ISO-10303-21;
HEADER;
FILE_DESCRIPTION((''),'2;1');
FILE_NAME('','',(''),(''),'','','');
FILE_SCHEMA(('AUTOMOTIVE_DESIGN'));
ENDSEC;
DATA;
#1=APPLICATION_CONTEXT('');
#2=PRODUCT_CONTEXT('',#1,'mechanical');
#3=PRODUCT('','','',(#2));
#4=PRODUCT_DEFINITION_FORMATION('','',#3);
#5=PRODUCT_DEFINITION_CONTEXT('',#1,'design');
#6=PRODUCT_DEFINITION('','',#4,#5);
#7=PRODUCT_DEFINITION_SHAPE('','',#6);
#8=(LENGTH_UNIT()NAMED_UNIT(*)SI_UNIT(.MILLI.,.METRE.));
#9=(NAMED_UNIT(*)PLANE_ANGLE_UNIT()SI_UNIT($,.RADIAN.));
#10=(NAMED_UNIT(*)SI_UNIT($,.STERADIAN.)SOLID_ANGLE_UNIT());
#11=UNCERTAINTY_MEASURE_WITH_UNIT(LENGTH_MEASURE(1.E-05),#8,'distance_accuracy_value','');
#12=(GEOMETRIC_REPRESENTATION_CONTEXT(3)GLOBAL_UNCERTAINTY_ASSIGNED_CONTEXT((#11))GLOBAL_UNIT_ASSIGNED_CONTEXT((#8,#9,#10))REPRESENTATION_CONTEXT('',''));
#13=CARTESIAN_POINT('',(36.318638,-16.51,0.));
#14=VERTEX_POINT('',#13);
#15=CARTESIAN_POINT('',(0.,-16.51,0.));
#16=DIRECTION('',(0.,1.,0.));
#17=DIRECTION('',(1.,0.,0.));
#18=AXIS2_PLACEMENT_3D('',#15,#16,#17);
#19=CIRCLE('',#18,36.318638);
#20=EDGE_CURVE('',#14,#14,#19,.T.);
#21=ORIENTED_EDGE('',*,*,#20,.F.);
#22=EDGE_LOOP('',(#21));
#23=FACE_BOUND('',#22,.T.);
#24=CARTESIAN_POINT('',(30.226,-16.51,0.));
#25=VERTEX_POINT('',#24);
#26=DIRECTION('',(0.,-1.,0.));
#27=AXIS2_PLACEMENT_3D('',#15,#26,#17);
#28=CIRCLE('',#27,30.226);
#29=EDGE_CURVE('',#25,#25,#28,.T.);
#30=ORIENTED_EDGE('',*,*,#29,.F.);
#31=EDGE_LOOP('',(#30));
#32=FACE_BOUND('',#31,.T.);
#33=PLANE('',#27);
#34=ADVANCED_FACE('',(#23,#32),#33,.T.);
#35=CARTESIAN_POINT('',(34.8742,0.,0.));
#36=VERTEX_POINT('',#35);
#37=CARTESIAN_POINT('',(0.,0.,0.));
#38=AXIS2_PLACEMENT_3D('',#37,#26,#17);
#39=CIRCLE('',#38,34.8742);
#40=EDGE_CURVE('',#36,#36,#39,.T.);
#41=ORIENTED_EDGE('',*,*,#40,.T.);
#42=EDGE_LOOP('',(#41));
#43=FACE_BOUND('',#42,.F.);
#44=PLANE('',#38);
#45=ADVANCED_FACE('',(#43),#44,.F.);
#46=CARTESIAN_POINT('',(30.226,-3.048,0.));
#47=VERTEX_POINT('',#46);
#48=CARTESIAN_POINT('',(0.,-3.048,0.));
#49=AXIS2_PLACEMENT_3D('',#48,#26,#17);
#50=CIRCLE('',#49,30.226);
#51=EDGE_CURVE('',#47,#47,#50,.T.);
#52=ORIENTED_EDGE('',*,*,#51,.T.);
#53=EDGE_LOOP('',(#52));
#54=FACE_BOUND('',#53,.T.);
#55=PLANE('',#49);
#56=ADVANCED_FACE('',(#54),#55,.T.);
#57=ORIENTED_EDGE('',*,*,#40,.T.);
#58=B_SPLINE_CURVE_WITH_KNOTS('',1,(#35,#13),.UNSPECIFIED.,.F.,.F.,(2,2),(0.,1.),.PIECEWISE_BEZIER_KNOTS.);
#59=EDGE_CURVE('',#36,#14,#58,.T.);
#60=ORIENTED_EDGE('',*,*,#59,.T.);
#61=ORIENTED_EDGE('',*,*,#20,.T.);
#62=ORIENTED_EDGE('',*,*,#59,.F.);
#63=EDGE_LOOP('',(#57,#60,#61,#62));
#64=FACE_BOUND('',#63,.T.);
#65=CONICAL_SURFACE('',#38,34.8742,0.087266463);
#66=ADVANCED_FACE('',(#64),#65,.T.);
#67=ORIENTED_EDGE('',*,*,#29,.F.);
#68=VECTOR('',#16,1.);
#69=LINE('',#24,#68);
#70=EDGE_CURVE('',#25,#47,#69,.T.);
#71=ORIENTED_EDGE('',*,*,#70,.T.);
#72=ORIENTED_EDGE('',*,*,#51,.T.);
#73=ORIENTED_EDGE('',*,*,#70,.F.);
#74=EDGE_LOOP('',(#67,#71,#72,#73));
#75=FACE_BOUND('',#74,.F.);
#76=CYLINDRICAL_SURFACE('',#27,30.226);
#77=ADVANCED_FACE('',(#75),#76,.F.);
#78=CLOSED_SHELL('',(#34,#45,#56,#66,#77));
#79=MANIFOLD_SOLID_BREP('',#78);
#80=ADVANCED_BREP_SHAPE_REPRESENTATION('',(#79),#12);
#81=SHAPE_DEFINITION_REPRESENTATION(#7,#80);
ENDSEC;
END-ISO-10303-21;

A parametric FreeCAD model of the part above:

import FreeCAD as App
import Part
import Sketcher
from FreeCAD import Vector
Q = App.Units.Quantity

doc = App.newDocument("Part")
body = doc.addObject("PartDesign::Body", "Body")

sketch1 = doc.addObject("Sketcher::SketchObject", "Sketch")
body.addObject(sketch1)
sketch1.AttachmentSupport = (doc.XZ_Plane, [""])
sketch1.MapMode = "FlatFace"
sketch1.addGeometry(Part.Circle(Vector(0, 0, 0), Vector(0, 0, 1), 35), False)
sketch1.addConstraint([
    Sketcher.Constraint("Coincident", 0, 3, -1, 1),
    Sketcher.Constraint("Diameter", 0, Q("2.746 in")),
])
pad1 = doc.addObject("PartDesign::Pad", "Pad")
body.addObject(pad1)
pad1.Profile = sketch1
pad1.Length = Q("0.65 in")
pad1.TaperAngle = 5

sketch2 = doc.addObject("Sketcher::SketchObject", "Sketch001")
body.addObject(sketch2)
sketch2.AttachmentSupport = (doc.XZ_Plane, [""])
sketch2.MapMode = "FlatFace"
sketch2.AttachmentOffset = App.Placement(Vector(0, 0, 0.65 * 25.4), App.Rotation())
sketch2.addGeometry(Part.Circle(Vector(0, 0, 0), Vector(0, 0, 1), 30), False)
sketch2.addConstraint([
    Sketcher.Constraint("Coincident", 0, 3, -1, 1),
    Sketcher.Constraint("Diameter", 0, Q("2.38 in")),
])
pocket1 = doc.addObject("PartDesign::Pocket", "Pocket")
body.addObject(pocket1)
pocket1.Profile = sketch2
pocket1.Length = Q("0.53 in")

doc.recompute()
